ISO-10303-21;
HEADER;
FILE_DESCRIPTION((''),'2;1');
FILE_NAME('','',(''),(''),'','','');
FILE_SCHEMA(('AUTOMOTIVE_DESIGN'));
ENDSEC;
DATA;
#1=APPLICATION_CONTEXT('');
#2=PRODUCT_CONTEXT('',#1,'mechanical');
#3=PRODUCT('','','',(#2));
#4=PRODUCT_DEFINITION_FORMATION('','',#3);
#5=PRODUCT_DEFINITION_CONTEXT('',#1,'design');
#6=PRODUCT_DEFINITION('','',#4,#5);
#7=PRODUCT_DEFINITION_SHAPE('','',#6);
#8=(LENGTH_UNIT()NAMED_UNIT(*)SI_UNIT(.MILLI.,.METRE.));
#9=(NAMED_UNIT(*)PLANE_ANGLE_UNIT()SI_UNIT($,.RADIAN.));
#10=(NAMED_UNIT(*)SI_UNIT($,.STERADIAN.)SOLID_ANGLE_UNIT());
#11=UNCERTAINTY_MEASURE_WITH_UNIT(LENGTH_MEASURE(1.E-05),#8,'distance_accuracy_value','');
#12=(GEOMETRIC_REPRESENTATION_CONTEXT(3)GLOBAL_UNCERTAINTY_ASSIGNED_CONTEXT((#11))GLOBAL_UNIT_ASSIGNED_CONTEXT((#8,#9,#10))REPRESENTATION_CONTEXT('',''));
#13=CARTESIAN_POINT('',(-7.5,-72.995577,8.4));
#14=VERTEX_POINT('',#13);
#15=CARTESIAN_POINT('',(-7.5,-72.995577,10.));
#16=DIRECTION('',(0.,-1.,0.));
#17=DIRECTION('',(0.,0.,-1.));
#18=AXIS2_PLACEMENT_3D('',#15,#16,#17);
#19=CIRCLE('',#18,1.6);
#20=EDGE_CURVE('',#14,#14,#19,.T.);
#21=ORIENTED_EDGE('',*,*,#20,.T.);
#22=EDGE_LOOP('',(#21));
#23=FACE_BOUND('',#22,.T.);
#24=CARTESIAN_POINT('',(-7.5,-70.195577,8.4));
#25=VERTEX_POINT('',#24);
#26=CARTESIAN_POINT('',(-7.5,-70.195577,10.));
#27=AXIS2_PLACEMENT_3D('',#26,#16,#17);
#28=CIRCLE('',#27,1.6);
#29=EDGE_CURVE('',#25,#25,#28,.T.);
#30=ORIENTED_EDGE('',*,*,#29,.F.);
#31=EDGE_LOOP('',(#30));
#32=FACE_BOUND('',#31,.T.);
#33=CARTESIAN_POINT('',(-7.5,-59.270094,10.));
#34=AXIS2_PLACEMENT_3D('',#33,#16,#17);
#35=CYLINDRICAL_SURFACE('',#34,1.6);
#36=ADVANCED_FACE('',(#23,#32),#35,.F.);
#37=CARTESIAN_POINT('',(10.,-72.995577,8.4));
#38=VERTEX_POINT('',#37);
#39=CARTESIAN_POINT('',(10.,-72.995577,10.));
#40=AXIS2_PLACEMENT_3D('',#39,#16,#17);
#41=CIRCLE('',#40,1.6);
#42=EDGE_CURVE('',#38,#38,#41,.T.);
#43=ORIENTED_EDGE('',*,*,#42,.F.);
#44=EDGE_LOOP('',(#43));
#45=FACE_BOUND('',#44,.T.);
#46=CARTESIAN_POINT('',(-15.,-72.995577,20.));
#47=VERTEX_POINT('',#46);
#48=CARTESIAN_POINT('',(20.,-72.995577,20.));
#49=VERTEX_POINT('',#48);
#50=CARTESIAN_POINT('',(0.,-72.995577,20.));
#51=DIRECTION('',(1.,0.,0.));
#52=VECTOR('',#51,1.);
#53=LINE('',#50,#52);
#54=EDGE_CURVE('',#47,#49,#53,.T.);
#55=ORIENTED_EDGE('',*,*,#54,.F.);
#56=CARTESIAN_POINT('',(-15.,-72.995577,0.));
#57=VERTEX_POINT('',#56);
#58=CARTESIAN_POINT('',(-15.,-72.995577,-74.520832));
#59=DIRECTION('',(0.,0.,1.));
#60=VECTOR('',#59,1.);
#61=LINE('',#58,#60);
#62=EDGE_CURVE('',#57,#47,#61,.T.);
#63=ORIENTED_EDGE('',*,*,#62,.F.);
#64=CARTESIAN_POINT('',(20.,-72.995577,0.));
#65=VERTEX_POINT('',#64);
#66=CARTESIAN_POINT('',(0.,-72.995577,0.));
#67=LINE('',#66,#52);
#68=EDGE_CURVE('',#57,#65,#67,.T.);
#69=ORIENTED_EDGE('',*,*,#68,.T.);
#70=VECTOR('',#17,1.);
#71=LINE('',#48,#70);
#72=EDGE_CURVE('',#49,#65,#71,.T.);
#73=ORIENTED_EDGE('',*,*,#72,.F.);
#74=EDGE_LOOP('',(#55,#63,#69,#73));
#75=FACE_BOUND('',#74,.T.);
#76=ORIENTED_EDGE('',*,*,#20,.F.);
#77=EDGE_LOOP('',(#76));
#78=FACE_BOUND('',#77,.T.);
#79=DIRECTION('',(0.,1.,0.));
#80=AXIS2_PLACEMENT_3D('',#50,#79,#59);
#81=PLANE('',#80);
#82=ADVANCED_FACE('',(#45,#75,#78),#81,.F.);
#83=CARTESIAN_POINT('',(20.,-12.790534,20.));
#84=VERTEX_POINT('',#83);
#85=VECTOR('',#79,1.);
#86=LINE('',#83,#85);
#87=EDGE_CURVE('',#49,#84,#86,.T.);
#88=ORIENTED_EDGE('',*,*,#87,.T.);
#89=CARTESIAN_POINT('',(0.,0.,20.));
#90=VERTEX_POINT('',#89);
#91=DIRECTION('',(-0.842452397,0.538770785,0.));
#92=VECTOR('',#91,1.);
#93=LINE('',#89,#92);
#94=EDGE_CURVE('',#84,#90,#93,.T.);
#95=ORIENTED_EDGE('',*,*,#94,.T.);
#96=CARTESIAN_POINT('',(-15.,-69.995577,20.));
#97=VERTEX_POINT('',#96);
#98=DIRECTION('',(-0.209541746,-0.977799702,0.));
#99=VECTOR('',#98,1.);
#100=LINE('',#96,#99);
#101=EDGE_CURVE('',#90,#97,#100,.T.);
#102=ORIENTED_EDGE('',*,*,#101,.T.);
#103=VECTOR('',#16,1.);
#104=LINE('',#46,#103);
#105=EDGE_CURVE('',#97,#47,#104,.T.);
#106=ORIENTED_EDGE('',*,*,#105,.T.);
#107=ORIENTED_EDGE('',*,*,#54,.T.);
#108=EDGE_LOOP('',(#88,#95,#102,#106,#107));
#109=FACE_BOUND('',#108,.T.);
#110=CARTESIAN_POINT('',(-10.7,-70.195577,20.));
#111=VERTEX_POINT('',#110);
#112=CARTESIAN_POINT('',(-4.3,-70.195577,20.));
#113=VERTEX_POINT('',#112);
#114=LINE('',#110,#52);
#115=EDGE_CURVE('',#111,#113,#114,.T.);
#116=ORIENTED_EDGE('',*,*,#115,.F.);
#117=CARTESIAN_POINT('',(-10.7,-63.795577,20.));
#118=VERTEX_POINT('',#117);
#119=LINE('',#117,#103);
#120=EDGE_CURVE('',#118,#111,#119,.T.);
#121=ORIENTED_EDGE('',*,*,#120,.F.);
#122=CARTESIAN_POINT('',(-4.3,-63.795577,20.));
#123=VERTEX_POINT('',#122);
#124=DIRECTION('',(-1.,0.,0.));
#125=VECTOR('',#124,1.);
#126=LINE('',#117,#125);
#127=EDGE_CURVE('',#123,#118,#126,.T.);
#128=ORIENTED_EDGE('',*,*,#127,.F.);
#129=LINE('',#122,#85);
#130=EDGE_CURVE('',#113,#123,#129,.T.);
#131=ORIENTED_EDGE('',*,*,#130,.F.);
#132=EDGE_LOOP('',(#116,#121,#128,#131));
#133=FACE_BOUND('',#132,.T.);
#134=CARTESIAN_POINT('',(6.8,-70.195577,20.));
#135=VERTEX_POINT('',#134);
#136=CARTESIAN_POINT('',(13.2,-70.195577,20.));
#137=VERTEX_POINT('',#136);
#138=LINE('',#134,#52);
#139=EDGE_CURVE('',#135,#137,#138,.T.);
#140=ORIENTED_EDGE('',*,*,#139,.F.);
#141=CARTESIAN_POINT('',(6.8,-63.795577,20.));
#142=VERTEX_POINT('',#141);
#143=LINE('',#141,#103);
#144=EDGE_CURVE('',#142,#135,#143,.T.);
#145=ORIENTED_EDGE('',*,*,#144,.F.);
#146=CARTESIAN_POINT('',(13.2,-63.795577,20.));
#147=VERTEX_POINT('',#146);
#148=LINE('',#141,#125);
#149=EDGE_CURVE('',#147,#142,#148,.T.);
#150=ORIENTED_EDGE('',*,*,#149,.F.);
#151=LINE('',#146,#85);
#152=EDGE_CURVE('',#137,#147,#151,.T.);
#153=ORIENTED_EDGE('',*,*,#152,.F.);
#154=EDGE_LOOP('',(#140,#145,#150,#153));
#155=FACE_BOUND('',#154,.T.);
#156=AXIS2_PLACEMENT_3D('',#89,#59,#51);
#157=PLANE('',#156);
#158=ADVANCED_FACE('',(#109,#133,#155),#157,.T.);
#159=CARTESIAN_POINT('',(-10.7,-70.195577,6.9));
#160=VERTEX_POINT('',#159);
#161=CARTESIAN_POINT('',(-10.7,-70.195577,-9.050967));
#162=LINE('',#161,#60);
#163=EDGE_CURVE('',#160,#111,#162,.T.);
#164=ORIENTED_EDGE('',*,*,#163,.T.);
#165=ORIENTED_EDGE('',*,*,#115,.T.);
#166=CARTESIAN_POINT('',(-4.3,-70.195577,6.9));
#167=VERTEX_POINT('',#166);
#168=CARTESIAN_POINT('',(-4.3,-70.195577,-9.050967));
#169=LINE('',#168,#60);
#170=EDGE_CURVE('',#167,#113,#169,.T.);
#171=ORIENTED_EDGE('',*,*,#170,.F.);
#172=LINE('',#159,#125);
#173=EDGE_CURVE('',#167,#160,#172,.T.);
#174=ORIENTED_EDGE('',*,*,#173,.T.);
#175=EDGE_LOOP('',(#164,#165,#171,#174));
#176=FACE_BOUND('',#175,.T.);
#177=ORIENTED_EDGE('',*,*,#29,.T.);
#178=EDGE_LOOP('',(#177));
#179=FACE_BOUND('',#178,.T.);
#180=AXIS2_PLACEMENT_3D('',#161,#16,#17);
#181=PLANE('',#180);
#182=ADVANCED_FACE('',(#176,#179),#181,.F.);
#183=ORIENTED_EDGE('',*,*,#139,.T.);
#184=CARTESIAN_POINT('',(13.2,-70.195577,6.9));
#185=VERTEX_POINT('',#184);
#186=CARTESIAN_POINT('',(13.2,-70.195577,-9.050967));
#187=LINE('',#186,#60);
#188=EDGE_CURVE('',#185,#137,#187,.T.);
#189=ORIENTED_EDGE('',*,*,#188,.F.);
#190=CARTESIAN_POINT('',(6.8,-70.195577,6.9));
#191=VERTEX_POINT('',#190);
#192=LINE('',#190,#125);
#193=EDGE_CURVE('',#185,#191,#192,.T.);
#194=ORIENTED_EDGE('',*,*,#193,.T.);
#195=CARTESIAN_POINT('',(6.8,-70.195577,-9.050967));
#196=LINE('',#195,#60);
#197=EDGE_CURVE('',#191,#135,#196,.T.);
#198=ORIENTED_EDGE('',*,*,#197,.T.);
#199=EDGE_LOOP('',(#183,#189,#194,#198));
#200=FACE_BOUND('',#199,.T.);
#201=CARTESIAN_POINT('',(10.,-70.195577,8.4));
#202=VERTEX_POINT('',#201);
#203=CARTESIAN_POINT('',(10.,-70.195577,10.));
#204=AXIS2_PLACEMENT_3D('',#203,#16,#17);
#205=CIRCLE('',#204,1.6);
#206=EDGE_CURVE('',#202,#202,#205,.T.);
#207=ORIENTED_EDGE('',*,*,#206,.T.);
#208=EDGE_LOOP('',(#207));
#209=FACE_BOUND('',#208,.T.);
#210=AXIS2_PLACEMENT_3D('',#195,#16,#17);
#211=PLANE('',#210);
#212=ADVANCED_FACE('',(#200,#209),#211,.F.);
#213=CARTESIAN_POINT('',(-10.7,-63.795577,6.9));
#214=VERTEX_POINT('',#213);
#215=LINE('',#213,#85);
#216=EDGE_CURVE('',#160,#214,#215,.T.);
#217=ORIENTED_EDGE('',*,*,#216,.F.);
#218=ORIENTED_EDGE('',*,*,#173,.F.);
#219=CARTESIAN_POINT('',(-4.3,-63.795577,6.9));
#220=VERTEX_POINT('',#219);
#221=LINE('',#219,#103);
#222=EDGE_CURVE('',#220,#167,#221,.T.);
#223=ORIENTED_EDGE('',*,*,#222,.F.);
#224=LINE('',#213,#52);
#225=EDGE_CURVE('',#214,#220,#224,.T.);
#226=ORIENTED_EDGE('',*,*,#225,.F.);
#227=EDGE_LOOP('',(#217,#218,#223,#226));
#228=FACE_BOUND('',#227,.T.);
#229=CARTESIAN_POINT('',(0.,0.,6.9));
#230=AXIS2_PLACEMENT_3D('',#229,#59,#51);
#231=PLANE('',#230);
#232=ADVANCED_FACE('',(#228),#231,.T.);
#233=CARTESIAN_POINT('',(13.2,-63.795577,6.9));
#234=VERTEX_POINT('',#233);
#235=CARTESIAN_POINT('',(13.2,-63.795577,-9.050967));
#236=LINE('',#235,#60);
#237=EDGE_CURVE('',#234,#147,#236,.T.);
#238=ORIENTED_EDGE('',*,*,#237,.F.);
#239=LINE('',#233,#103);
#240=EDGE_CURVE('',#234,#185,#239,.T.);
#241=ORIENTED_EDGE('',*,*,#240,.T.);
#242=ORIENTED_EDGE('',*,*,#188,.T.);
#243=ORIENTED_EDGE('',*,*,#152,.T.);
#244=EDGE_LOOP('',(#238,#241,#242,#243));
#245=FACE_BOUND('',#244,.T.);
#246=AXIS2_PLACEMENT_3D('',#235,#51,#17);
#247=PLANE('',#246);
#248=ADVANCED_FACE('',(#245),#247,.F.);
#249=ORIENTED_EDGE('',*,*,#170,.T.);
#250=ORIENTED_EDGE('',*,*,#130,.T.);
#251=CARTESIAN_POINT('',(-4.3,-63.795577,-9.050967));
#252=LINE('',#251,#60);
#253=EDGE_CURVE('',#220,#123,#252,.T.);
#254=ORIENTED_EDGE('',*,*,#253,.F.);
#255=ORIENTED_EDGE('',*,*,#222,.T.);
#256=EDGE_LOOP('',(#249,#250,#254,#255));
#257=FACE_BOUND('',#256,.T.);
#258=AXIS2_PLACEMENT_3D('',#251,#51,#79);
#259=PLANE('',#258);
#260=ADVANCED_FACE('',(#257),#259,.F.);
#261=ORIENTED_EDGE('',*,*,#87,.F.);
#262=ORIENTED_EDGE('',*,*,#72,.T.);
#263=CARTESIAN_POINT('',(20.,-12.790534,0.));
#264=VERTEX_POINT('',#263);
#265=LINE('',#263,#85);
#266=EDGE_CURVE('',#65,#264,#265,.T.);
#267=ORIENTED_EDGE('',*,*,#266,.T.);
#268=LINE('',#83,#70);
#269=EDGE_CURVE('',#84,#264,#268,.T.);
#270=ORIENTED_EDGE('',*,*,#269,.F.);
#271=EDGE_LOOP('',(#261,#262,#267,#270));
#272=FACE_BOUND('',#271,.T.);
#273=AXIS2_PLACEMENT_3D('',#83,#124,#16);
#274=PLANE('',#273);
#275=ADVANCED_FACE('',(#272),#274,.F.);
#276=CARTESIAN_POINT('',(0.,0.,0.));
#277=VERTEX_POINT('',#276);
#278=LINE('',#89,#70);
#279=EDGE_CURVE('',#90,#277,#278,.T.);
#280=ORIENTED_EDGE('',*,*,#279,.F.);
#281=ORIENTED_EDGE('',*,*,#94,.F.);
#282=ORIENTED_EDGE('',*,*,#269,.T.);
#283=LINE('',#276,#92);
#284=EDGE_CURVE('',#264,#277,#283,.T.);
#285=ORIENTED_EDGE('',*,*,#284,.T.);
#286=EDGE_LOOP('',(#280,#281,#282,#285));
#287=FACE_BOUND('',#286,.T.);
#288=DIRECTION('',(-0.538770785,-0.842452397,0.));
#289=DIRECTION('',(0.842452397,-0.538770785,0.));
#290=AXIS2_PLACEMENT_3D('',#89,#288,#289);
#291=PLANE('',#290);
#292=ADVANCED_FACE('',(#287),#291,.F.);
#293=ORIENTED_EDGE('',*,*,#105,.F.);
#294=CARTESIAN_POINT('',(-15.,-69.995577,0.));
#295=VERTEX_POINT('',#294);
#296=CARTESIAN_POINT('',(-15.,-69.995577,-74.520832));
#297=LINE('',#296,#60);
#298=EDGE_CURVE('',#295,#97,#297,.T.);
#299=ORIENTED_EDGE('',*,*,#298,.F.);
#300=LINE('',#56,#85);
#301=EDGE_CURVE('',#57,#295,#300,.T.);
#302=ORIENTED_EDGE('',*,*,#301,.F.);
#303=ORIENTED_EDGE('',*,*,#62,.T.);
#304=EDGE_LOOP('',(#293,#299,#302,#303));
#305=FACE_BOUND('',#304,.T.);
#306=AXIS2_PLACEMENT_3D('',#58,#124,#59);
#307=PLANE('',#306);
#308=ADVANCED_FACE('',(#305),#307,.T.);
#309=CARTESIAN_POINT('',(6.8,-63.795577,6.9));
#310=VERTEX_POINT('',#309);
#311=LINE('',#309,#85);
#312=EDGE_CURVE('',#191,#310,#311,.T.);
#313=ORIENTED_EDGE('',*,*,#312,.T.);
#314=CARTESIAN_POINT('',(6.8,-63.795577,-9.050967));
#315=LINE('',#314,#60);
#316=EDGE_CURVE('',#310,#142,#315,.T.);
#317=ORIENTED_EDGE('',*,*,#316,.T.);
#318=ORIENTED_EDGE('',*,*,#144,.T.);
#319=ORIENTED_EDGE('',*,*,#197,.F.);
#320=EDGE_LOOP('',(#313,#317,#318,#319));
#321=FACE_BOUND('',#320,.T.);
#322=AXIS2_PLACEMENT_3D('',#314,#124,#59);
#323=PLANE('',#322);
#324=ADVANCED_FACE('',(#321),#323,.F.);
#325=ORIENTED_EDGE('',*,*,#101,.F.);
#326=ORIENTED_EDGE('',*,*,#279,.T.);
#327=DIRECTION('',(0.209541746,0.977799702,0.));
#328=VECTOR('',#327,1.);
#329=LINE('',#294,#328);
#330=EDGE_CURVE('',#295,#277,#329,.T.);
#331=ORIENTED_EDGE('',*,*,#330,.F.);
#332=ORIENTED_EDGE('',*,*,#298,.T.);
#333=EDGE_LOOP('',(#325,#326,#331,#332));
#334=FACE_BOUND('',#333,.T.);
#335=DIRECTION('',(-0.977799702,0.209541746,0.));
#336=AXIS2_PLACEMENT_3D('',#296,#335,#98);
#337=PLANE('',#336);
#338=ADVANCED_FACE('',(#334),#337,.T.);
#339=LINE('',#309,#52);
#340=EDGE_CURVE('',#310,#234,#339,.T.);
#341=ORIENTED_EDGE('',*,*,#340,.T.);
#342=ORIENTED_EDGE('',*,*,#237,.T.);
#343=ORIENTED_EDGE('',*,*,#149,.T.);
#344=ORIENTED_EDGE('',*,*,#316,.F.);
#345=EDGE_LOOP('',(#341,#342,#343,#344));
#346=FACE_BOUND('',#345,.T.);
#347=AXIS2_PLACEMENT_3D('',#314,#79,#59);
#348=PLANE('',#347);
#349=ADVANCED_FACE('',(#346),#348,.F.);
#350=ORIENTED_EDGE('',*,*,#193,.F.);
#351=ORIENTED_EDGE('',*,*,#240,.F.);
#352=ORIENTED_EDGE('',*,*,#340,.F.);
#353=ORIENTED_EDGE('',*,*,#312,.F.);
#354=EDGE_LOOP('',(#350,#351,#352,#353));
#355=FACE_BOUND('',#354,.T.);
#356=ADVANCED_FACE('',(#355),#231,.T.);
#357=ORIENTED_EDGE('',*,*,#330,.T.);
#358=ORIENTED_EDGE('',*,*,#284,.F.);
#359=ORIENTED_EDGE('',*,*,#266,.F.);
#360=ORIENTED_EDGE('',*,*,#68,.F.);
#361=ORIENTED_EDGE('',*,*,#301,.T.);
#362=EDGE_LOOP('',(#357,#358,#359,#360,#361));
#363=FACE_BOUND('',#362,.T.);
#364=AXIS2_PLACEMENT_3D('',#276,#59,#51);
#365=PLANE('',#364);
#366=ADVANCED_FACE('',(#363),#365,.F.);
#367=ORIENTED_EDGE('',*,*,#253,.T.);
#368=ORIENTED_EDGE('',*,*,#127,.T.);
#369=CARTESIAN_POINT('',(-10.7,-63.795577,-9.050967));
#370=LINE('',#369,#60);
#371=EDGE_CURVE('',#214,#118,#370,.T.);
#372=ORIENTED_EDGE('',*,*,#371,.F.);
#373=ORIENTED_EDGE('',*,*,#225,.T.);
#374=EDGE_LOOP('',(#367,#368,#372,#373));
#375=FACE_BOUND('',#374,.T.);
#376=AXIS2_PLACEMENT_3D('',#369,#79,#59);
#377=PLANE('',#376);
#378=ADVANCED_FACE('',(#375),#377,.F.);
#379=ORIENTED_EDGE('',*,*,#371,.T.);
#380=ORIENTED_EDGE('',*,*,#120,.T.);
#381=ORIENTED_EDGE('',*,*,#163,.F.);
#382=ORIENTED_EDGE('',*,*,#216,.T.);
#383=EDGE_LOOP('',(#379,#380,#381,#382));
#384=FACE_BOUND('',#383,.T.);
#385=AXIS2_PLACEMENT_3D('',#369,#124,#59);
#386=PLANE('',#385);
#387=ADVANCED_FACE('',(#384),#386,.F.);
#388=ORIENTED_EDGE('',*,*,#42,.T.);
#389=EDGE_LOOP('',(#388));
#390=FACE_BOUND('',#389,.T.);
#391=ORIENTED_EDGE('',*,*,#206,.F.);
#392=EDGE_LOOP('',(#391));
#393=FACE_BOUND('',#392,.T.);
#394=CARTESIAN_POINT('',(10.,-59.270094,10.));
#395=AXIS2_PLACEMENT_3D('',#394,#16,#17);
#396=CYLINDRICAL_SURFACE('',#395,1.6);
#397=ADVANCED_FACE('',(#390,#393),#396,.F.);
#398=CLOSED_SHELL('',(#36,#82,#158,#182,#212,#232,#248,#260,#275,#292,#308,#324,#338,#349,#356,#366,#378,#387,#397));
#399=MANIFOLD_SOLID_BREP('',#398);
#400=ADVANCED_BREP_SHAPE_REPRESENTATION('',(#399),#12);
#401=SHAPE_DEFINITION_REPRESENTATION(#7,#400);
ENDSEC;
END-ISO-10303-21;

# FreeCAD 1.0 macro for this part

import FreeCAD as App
import Part
import Sketcher

V = App.Vector
Q = App.Units.Quantity

doc = App.newDocument("Part")
body = doc.addObject("PartDesign::Body", "Body")

sketch1 = body.newObject("Sketcher::SketchObject", "Sketch")
sketch1.AttachmentSupport = (doc.getObject("XY_Plane"), [""])
sketch1.MapMode = "FlatFace"
sketch1.addGeometry(Part.LineSegment(V(20, -13, 0), V(0, 0, 0)), False)
sketch1.addGeometry(Part.LineSegment(V(0, 0, 0), V(0, -73, 0)), False)
sketch1.addGeometry(Part.LineSegment(V(0, -73, 0), V(20, -73, 0)), False)
sketch1.addGeometry(Part.LineSegment(V(20, -73, 0), V(20, -13, 0)), False)
sketch1.addConstraint(Sketcher.Constraint("Coincident", 0, 2, 1, 1))
sketch1.addConstraint(Sketcher.Constraint("Coincident", 1, 2, 2, 1))
sketch1.addConstraint(Sketcher.Constraint("Coincident", 2, 2, 3, 1))
sketch1.addConstraint(Sketcher.Constraint("Coincident", 3, 2, 0, 1))
sketch1.addConstraint(Sketcher.Constraint("Vertical", 1))
sketch1.addConstraint(Sketcher.Constraint("Horizontal", 2))
sketch1.addConstraint(Sketcher.Constraint("Vertical", 3))
sketch1.addConstraint(Sketcher.Constraint("Coincident", 0, 2, -1, 1))
sketch1.addConstraint(Sketcher.Constraint("DistanceX", 2, 1, 2, 2, Q("20 mm")))
sketch1.addConstraint(Sketcher.Constraint("Angle", 0, Q("147.4 deg")))
sketch1.addConstraint(Sketcher.Constraint("DistanceY", 1, 2, 1, 1, Q("72.995577 mm")))
pad1 = body.newObject("PartDesign::Pad", "Pad")
pad1.Profile = sketch1
pad1.Length = 20

sketch2 = body.newObject("Sketcher::SketchObject", "Sketch001")
sketch2.AttachmentSupport = (doc.getObject("XY_Plane"), [""])
sketch2.MapMode = "FlatFace"
sketch2.AttachmentOffset = App.Placement(V(0, 0, 20), App.Rotation())
sketch2.addGeometry(Part.LineSegment(V(-15, -73, 0), V(0, -73, 0)), False)
sketch2.addGeometry(Part.LineSegment(V(0, -73, 0), V(0, 0, 0)), False)
sketch2.addGeometry(Part.LineSegment(V(0, 0, 0), V(-15, -70, 0)), False)
sketch2.addGeometry(Part.LineSegment(V(-15, -70, 0), V(-15, -73, 0)), False)
sketch2.addConstraint(Sketcher.Constraint("Coincident", 0, 2, 1, 1))
sketch2.addConstraint(Sketcher.Constraint("Coincident", 1, 2, 2, 1))
sketch2.addConstraint(Sketcher.Constraint("Coincident", 2, 2, 3, 1))
sketch2.addConstraint(Sketcher.Constraint("Coincident", 3, 2, 0, 1))
sketch2.addConstraint(Sketcher.Constraint("Horizontal", 0))
sketch2.addConstraint(Sketcher.Constraint("Vertical", 1))
sketch2.addConstraint(Sketcher.Constraint("Vertical", 3))
sketch2.addConstraint(Sketcher.Constraint("Coincident", 1, 2, -1, 1))
sketch2.addConstraint(Sketcher.Constraint("DistanceX", 0, 1, 0, 2, Q("15 mm")))
sketch2.addConstraint(Sketcher.Constraint("DistanceY", 3, 2, 3, 1, Q("3 mm")))
sketch2.addConstraint(Sketcher.Constraint("Distance", 2, Q("71.584781 mm")))
pad2 = body.newObject("PartDesign::Pad", "Pad001")
pad2.Profile = sketch2
pad2.Length = 20
pad2.Reversed = True

sketch3 = body.newObject("Sketcher::SketchObject", "Sketch002")
sketch3.AttachmentSupport = (doc.getObject("XY_Plane"), [""])
sketch3.MapMode = "FlatFace"
sketch3.AttachmentOffset = App.Placement(V(0, 0, 20), App.Rotation())
sketch3.addGeometry(Part.LineSegment(V(-11, -64, 0), V(-11, -70, 0)), False)
sketch3.addGeometry(Part.LineSegment(V(-11, -70, 0), V(-4, -70, 0)), False)
sketch3.addGeometry(Part.LineSegment(V(-4, -70, 0), V(-4, -64, 0)), False)
sketch3.addGeometry(Part.LineSegment(V(-4, -64, 0), V(-11, -64, 0)), False)
sketch3.addGeometry(Part.LineSegment(V(7, -64, 0), V(7, -70, 0)), False)
sketch3.addGeometry(Part.LineSegment(V(7, -70, 0), V(13, -70, 0)), False)
sketch3.addGeometry(Part.LineSegment(V(13, -70, 0), V(13, -64, 0)), False)
sketch3.addGeometry(Part.LineSegment(V(13, -64, 0), V(7, -64, 0)), False)
sketch3.addConstraint(Sketcher.Constraint("Coincident", 0, 2, 1, 1))
sketch3.addConstraint(Sketcher.Constraint("Coincident", 1, 2, 2, 1))
sketch3.addConstraint(Sketcher.Constraint("Coincident", 2, 2, 3, 1))
sketch3.addConstraint(Sketcher.Constraint("Coincident", 3, 2, 0, 1))
sketch3.addConstraint(Sketcher.Constraint("Coincident", 4, 2, 5, 1))
sketch3.addConstraint(Sketcher.Constraint("Coincident", 5, 2, 6, 1))
sketch3.addConstraint(Sketcher.Constraint("Coincident", 6, 2, 7, 1))
sketch3.addConstraint(Sketcher.Constraint("Coincident", 7, 2, 4, 1))
sketch3.addConstraint(Sketcher.Constraint("Vertical", 0))
sketch3.addConstraint(Sketcher.Constraint("Horizontal", 1))
sketch3.addConstraint(Sketcher.Constraint("Vertical", 2))
sketch3.addConstraint(Sketcher.Constraint("Horizontal", 3))
sketch3.addConstraint(Sketcher.Constraint("Vertical", 4))
sketch3.addConstraint(Sketcher.Constraint("Horizontal", 5))
sketch3.addConstraint(Sketcher.Constraint("Vertical", 6))
sketch3.addConstraint(Sketcher.Constraint("Horizontal", 7))
sketch3.addConstraint(Sketcher.Constraint("Horizontal", 1, 2, 4, 2))
sketch3.addConstraint(Sketcher.Constraint("Horizontal", 3, 2, 6, 2))
sketch3.addConstraint(Sketcher.Constraint("Equal", 3, 5))
sketch3.addConstraint(Sketcher.Constraint("Equal", 7, 0))
sketch3.addConstraint(Sketcher.Constraint("DistanceX", 1, 1, 1, 2, Q("6.4 mm")))
sketch3.addConstraint(Sketcher.Constraint("DistanceX", 0, 2, -1, 1, Q("10.7 mm")))
sketch3.addConstraint(Sketcher.Constraint("DistanceX", -1, 1, 4, 2, Q("6.8 mm")))
sketch3.addConstraint(Sketcher.Constraint("DistanceY", 0, 2, -1, 1, Q("70.195577 mm")))
pocket1 = body.newObject("PartDesign::Pocket", "Pocket")
pocket1.Profile = sketch3
pocket1.Length = 13.1

sketch4 = body.newObject("Sketcher::SketchObject", "Sketch003")
sketch4.AttachmentSupport = (doc.getObject("XZ_Plane"), [""])
sketch4.MapMode = "FlatFace"
sketch4.AttachmentOffset = App.Placement(V(0, 0, 72.995577), App.Rotation())
sketch4.addGeometry(Part.Circle(V(10, 10, 0), V(0, 0, 1), 1.6), False)
sketch4.addGeometry(Part.Circle(V(-7.5, 10, 0), V(0, 0, 1), 1.6), False)
sketch4.addConstraint(Sketcher.Constraint("Equal", 0, 1))
sketch4.addConstraint(Sketcher.Constraint("Horizontal", 0, 3, 1, 3))
sketch4.addConstraint(Sketcher.Constraint("Diameter", 0, Q("3.2 mm")))
sketch4.addConstraint(Sketcher.Constraint("DistanceX", -1, 1, 0, 3, Q("10 mm")))
sketch4.addConstraint(Sketcher.Constraint("DistanceY", -1, 1, 0, 3, Q("10 mm")))
sketch4.addConstraint(Sketcher.Constraint("DistanceX", 1, 3, -1, 1, Q("7.5 mm")))
pocket2 = body.newObject("PartDesign::Pocket", "Pocket001")
pocket2.Profile = sketch4
pocket2.Length = 9.2

doc.recompute()
